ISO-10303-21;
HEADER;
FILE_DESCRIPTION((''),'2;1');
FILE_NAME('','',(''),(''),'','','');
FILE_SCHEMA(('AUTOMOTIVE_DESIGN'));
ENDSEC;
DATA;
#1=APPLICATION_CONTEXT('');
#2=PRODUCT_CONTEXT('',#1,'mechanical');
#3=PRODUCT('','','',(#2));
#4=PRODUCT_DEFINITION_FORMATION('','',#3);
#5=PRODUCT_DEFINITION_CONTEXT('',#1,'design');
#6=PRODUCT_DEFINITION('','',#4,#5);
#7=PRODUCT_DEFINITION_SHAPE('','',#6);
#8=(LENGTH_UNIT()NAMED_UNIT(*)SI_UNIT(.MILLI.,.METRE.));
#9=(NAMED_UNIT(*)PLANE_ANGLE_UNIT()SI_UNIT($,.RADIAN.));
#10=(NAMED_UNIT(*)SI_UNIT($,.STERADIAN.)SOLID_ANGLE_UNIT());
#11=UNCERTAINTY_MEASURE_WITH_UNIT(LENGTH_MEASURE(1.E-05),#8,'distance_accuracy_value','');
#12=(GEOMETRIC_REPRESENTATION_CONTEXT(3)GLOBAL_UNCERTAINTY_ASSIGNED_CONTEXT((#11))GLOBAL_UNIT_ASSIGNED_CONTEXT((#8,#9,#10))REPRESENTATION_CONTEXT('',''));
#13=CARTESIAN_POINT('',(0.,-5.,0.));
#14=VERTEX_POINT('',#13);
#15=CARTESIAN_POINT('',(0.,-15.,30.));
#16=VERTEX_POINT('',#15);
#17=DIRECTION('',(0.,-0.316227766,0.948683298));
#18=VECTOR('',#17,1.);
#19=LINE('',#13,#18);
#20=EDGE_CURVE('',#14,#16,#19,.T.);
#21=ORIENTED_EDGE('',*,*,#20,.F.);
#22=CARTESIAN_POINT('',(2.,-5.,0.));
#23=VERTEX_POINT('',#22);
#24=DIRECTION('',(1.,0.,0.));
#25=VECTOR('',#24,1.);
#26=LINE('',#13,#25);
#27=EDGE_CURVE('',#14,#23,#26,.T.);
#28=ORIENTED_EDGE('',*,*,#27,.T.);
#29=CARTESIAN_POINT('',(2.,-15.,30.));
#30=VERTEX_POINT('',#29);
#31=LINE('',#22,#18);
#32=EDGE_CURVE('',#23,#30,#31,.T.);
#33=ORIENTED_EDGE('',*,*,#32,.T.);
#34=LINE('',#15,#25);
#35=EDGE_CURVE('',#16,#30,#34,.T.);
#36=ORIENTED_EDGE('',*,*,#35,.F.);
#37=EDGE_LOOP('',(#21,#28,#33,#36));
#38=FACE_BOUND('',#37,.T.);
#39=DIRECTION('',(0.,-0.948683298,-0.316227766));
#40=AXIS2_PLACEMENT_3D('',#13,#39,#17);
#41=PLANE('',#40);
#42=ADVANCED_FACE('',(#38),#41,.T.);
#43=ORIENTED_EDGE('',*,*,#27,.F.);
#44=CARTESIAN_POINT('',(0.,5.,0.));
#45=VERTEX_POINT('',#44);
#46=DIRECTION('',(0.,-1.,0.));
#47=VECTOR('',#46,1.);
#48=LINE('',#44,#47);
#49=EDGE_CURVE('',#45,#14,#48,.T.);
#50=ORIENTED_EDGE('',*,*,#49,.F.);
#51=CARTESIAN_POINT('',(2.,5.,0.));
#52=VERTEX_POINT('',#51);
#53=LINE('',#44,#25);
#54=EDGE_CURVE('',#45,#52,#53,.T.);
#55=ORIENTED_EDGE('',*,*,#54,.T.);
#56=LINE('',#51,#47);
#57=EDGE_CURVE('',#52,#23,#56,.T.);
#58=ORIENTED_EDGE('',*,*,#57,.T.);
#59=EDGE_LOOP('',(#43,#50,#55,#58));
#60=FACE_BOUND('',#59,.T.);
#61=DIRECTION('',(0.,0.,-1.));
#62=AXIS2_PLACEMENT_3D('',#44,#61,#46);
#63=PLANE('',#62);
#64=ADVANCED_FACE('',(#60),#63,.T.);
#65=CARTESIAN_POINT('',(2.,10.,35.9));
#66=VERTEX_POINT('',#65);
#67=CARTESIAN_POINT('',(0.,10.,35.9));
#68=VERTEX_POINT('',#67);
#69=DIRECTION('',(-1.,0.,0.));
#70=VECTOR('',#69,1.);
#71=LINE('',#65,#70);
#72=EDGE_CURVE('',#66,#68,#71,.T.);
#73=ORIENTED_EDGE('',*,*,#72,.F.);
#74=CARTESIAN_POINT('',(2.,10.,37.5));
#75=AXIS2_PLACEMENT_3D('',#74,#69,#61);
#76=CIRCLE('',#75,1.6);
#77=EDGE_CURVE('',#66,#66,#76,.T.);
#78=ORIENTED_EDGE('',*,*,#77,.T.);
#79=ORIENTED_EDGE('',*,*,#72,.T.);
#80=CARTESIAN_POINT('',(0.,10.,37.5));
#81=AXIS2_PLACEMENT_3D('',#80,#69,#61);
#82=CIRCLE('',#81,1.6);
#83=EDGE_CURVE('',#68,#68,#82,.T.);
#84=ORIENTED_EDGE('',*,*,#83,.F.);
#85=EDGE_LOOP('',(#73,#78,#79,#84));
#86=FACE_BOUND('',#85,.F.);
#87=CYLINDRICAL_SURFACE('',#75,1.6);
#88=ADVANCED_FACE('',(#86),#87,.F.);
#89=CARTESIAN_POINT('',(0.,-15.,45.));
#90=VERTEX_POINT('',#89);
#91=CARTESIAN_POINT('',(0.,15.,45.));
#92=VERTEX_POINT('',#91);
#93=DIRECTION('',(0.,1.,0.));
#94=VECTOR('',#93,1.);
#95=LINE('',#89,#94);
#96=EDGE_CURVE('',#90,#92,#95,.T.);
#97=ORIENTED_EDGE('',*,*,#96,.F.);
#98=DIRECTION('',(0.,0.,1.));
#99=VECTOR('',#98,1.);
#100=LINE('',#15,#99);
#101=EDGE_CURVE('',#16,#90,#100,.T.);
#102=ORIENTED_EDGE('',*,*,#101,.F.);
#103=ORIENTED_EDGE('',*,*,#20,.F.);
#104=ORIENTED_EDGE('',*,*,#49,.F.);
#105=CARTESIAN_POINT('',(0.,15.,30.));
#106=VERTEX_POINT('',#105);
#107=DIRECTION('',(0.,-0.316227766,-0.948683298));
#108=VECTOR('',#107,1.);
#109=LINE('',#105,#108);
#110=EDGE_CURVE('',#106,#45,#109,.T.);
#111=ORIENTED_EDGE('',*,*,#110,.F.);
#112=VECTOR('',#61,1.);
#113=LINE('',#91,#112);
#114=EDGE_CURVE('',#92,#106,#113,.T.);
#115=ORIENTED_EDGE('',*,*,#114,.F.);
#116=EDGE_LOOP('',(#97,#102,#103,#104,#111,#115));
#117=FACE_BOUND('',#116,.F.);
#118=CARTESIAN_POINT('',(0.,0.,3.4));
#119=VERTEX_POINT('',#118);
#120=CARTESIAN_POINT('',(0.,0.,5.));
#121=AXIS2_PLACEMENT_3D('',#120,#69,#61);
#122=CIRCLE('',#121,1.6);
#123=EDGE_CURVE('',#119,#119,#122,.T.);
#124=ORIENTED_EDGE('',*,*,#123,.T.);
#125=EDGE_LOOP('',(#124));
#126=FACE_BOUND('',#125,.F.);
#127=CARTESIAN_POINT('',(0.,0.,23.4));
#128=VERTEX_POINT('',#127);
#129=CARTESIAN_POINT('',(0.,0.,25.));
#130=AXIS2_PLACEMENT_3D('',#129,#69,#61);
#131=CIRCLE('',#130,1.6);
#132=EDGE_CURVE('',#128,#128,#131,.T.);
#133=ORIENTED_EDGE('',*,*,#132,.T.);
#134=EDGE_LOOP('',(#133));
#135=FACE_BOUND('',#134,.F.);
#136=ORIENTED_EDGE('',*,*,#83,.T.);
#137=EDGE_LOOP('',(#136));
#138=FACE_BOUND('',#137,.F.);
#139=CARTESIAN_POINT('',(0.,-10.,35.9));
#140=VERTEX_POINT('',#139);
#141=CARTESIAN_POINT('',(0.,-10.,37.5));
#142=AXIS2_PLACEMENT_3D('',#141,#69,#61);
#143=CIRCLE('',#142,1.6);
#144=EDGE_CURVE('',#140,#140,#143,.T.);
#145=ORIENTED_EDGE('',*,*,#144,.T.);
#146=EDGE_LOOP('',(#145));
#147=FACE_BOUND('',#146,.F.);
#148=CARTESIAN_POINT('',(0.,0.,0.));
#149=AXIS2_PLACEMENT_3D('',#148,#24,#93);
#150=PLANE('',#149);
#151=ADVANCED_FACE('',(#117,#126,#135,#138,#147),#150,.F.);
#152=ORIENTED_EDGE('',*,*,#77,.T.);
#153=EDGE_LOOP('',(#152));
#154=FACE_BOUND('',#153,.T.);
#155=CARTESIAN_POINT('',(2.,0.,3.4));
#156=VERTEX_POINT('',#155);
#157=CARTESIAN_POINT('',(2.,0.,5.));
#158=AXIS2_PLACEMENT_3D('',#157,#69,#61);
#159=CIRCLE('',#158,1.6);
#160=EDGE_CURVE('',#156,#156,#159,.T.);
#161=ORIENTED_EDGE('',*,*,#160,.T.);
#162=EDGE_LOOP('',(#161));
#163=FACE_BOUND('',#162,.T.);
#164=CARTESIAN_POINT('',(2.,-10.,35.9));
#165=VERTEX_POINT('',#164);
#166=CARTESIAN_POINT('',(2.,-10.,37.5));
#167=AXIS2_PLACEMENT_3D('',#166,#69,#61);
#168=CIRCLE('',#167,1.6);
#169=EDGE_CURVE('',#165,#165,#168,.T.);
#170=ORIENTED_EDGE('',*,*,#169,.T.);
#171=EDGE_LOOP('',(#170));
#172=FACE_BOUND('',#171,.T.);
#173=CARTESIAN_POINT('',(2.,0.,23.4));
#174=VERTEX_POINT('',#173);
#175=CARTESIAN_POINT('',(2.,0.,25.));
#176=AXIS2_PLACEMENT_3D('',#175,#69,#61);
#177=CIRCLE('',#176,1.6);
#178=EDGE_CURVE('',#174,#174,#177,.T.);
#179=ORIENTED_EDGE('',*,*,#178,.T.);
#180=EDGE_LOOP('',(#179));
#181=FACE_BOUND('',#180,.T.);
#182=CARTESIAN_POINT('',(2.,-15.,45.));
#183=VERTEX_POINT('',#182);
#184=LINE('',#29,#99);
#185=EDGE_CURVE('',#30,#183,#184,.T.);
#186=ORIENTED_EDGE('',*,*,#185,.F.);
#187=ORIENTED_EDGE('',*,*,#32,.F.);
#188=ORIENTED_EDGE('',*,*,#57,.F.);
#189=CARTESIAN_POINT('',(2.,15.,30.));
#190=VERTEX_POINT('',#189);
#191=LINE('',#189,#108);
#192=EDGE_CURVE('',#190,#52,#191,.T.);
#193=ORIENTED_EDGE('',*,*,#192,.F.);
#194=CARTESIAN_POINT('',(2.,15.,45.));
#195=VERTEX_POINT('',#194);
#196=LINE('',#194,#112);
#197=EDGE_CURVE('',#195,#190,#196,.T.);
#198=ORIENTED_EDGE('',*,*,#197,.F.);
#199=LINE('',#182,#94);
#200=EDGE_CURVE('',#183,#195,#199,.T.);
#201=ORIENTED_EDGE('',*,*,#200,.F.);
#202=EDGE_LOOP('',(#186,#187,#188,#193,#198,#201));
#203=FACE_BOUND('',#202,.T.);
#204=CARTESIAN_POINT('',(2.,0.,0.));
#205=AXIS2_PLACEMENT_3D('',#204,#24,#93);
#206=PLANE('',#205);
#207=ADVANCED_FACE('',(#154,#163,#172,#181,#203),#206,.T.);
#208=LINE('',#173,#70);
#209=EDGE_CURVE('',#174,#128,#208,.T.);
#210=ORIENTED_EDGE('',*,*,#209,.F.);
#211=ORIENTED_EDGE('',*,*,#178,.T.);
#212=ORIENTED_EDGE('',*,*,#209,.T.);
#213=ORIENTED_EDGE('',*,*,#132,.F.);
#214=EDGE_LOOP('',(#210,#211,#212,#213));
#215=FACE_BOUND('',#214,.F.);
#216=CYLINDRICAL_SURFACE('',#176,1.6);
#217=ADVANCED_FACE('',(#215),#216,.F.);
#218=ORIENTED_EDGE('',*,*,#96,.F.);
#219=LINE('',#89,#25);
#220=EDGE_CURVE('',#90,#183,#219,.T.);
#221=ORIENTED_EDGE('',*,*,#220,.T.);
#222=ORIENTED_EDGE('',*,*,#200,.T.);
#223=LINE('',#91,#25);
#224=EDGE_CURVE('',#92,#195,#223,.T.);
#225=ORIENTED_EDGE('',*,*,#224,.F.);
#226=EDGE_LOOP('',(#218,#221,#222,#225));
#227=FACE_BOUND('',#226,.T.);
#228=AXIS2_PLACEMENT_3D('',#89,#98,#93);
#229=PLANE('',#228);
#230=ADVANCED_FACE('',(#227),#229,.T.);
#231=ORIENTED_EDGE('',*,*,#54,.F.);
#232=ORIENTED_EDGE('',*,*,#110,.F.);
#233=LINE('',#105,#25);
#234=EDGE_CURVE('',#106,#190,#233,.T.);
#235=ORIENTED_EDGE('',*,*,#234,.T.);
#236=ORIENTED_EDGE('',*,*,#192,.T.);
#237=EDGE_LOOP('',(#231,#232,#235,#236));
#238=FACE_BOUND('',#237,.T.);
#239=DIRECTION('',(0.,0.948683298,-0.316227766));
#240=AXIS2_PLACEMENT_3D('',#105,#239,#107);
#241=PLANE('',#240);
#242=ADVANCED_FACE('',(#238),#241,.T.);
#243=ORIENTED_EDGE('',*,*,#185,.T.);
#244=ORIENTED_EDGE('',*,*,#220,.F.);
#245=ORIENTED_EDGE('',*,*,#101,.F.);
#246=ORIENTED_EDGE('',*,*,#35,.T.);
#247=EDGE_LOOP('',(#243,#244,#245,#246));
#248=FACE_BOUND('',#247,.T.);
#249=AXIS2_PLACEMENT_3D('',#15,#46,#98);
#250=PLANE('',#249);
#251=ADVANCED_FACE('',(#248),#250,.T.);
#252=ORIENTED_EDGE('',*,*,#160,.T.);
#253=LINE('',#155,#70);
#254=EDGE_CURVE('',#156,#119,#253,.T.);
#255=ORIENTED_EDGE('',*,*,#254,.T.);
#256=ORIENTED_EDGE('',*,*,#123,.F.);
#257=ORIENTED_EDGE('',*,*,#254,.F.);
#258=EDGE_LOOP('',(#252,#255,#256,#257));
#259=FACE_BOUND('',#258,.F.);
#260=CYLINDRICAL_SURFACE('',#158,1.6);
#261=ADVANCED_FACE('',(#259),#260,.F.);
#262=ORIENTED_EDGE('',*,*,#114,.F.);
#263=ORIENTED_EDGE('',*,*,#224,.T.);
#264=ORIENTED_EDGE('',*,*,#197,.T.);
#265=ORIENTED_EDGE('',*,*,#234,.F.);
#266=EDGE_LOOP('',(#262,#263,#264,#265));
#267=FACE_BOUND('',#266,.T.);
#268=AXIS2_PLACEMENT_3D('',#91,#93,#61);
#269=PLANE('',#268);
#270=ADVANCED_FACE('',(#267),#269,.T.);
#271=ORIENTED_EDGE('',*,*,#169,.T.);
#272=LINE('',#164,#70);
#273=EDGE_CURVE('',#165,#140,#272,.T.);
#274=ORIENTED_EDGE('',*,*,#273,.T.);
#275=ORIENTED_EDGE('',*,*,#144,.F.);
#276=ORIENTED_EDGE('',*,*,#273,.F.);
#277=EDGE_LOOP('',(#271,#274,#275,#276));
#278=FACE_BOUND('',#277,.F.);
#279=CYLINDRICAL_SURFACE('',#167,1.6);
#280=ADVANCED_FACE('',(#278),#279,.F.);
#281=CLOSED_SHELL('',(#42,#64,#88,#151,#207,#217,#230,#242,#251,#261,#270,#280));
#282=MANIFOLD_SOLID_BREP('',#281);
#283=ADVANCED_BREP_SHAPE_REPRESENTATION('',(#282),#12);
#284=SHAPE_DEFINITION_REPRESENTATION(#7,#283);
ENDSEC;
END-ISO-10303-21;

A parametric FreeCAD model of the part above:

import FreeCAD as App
import Part
import Sketcher


def add_polygon(sketch, points):
    """Adds a closed chain of lines whose ends are joined by coincident constraints."""
    first, n = sketch.GeometryCount, len(points)
    for a, b in zip(points, points[1:] + points[:1]):
        sketch.addGeometry(Part.LineSegment(App.Vector(*a, 0), App.Vector(*b, 0)), False)
    for i in range(n):
        sketch.addConstraint(Sketcher.Constraint("Coincident", first + i, 2, first + (i + 1) % n, 1))

doc = App.newDocument("Part")
body = doc.addObject("PartDesign::Body", "Body")

sketch1 = doc.addObject("Sketcher::SketchObject", "Sketch")
body.addObject(sketch1)
sketch1.AttachmentSupport = (doc.YZ_Plane, [""])
sketch1.MapMode = "FlatFace"
add_polygon(sketch1, [(-15, 45), (-15, 30), (-5, 0), (5, 0), (15, 30), (15, 45)])
sketch1.addConstraint([
    Sketcher.Constraint("Vertical", 0),
    Sketcher.Constraint("Horizontal", 2),
    Sketcher.Constraint("Vertical", 4),
    Sketcher.Constraint("Horizontal", 5),
    Sketcher.Constraint("Symmetric", 1, 2, 2, 2, -1, 1),
    Sketcher.Constraint("Symmetric", 0, 2, 3, 2, -2),
    Sketcher.Constraint("DistanceX", 2, 1, 2, 2, 10.0),
    Sketcher.Constraint("DistanceX", 5, 2, 5, 1, 30.0),
    Sketcher.Constraint("DistanceY", 0, 2, 0, 1, 15.0),
    Sketcher.Constraint("DistanceY", -1, 1, 0, 2, 30.0),
])
pad1 = doc.addObject("PartDesign::Pad", "Pad")
body.addObject(pad1)
pad1.Profile = sketch1
pad1.Length = 2

sketch2 = doc.addObject("Sketcher::SketchObject", "Sketch001")
body.addObject(sketch2)
sketch2.AttachmentSupport = (doc.YZ_Plane, [""])
sketch2.MapMode = "FlatFace"
sketch2.AttachmentOffset = App.Placement(App.Vector(0, 0, 2), App.Rotation())
sketch2.addGeometry([
    Part.Circle(App.Vector(10, 37.5, 0), App.Vector(0, 0, 1), 1.6),
    Part.Circle(App.Vector(-10, 37.5, 0), App.Vector(0, 0, 1), 1.6),
    Part.Circle(App.Vector(0, 25, 0), App.Vector(0, 0, 1), 1.6),
    Part.Circle(App.Vector(0, 5, 0), App.Vector(0, 0, 1), 1.6),
], False)
sketch2.addConstraint([
    Sketcher.Constraint("Equal", 0, 1),
    Sketcher.Constraint("Equal", 1, 2),
    Sketcher.Constraint("Equal", 2, 3),
    Sketcher.Constraint("Symmetric", 0, 3, 1, 3, -2),
    Sketcher.Constraint("PointOnObject", 2, 3, -2),
    Sketcher.Constraint("PointOnObject", 3, 3, -2),
    Sketcher.Constraint("Diameter", 0, 3.2),
    Sketcher.Constraint("DistanceX", -1, 1, 0, 3, 10.0),
    Sketcher.Constraint("DistanceY", -1, 1, 2, 3, 25.0),
    Sketcher.Constraint("DistanceY", -1, 1, 3, 3, 5.0),
    Sketcher.Constraint("DistanceY", -1, 1, 0, 3, 37.5),
])
doc.recompute()
hole = doc.addObject("PartDesign::Hole", "Hole")
body.addObject(hole)
hole.Profile = sketch2
hole.ThreadType = "None"
hole.Diameter = 3.2
hole.DepthType = "ThroughAll"

doc.recompute()
